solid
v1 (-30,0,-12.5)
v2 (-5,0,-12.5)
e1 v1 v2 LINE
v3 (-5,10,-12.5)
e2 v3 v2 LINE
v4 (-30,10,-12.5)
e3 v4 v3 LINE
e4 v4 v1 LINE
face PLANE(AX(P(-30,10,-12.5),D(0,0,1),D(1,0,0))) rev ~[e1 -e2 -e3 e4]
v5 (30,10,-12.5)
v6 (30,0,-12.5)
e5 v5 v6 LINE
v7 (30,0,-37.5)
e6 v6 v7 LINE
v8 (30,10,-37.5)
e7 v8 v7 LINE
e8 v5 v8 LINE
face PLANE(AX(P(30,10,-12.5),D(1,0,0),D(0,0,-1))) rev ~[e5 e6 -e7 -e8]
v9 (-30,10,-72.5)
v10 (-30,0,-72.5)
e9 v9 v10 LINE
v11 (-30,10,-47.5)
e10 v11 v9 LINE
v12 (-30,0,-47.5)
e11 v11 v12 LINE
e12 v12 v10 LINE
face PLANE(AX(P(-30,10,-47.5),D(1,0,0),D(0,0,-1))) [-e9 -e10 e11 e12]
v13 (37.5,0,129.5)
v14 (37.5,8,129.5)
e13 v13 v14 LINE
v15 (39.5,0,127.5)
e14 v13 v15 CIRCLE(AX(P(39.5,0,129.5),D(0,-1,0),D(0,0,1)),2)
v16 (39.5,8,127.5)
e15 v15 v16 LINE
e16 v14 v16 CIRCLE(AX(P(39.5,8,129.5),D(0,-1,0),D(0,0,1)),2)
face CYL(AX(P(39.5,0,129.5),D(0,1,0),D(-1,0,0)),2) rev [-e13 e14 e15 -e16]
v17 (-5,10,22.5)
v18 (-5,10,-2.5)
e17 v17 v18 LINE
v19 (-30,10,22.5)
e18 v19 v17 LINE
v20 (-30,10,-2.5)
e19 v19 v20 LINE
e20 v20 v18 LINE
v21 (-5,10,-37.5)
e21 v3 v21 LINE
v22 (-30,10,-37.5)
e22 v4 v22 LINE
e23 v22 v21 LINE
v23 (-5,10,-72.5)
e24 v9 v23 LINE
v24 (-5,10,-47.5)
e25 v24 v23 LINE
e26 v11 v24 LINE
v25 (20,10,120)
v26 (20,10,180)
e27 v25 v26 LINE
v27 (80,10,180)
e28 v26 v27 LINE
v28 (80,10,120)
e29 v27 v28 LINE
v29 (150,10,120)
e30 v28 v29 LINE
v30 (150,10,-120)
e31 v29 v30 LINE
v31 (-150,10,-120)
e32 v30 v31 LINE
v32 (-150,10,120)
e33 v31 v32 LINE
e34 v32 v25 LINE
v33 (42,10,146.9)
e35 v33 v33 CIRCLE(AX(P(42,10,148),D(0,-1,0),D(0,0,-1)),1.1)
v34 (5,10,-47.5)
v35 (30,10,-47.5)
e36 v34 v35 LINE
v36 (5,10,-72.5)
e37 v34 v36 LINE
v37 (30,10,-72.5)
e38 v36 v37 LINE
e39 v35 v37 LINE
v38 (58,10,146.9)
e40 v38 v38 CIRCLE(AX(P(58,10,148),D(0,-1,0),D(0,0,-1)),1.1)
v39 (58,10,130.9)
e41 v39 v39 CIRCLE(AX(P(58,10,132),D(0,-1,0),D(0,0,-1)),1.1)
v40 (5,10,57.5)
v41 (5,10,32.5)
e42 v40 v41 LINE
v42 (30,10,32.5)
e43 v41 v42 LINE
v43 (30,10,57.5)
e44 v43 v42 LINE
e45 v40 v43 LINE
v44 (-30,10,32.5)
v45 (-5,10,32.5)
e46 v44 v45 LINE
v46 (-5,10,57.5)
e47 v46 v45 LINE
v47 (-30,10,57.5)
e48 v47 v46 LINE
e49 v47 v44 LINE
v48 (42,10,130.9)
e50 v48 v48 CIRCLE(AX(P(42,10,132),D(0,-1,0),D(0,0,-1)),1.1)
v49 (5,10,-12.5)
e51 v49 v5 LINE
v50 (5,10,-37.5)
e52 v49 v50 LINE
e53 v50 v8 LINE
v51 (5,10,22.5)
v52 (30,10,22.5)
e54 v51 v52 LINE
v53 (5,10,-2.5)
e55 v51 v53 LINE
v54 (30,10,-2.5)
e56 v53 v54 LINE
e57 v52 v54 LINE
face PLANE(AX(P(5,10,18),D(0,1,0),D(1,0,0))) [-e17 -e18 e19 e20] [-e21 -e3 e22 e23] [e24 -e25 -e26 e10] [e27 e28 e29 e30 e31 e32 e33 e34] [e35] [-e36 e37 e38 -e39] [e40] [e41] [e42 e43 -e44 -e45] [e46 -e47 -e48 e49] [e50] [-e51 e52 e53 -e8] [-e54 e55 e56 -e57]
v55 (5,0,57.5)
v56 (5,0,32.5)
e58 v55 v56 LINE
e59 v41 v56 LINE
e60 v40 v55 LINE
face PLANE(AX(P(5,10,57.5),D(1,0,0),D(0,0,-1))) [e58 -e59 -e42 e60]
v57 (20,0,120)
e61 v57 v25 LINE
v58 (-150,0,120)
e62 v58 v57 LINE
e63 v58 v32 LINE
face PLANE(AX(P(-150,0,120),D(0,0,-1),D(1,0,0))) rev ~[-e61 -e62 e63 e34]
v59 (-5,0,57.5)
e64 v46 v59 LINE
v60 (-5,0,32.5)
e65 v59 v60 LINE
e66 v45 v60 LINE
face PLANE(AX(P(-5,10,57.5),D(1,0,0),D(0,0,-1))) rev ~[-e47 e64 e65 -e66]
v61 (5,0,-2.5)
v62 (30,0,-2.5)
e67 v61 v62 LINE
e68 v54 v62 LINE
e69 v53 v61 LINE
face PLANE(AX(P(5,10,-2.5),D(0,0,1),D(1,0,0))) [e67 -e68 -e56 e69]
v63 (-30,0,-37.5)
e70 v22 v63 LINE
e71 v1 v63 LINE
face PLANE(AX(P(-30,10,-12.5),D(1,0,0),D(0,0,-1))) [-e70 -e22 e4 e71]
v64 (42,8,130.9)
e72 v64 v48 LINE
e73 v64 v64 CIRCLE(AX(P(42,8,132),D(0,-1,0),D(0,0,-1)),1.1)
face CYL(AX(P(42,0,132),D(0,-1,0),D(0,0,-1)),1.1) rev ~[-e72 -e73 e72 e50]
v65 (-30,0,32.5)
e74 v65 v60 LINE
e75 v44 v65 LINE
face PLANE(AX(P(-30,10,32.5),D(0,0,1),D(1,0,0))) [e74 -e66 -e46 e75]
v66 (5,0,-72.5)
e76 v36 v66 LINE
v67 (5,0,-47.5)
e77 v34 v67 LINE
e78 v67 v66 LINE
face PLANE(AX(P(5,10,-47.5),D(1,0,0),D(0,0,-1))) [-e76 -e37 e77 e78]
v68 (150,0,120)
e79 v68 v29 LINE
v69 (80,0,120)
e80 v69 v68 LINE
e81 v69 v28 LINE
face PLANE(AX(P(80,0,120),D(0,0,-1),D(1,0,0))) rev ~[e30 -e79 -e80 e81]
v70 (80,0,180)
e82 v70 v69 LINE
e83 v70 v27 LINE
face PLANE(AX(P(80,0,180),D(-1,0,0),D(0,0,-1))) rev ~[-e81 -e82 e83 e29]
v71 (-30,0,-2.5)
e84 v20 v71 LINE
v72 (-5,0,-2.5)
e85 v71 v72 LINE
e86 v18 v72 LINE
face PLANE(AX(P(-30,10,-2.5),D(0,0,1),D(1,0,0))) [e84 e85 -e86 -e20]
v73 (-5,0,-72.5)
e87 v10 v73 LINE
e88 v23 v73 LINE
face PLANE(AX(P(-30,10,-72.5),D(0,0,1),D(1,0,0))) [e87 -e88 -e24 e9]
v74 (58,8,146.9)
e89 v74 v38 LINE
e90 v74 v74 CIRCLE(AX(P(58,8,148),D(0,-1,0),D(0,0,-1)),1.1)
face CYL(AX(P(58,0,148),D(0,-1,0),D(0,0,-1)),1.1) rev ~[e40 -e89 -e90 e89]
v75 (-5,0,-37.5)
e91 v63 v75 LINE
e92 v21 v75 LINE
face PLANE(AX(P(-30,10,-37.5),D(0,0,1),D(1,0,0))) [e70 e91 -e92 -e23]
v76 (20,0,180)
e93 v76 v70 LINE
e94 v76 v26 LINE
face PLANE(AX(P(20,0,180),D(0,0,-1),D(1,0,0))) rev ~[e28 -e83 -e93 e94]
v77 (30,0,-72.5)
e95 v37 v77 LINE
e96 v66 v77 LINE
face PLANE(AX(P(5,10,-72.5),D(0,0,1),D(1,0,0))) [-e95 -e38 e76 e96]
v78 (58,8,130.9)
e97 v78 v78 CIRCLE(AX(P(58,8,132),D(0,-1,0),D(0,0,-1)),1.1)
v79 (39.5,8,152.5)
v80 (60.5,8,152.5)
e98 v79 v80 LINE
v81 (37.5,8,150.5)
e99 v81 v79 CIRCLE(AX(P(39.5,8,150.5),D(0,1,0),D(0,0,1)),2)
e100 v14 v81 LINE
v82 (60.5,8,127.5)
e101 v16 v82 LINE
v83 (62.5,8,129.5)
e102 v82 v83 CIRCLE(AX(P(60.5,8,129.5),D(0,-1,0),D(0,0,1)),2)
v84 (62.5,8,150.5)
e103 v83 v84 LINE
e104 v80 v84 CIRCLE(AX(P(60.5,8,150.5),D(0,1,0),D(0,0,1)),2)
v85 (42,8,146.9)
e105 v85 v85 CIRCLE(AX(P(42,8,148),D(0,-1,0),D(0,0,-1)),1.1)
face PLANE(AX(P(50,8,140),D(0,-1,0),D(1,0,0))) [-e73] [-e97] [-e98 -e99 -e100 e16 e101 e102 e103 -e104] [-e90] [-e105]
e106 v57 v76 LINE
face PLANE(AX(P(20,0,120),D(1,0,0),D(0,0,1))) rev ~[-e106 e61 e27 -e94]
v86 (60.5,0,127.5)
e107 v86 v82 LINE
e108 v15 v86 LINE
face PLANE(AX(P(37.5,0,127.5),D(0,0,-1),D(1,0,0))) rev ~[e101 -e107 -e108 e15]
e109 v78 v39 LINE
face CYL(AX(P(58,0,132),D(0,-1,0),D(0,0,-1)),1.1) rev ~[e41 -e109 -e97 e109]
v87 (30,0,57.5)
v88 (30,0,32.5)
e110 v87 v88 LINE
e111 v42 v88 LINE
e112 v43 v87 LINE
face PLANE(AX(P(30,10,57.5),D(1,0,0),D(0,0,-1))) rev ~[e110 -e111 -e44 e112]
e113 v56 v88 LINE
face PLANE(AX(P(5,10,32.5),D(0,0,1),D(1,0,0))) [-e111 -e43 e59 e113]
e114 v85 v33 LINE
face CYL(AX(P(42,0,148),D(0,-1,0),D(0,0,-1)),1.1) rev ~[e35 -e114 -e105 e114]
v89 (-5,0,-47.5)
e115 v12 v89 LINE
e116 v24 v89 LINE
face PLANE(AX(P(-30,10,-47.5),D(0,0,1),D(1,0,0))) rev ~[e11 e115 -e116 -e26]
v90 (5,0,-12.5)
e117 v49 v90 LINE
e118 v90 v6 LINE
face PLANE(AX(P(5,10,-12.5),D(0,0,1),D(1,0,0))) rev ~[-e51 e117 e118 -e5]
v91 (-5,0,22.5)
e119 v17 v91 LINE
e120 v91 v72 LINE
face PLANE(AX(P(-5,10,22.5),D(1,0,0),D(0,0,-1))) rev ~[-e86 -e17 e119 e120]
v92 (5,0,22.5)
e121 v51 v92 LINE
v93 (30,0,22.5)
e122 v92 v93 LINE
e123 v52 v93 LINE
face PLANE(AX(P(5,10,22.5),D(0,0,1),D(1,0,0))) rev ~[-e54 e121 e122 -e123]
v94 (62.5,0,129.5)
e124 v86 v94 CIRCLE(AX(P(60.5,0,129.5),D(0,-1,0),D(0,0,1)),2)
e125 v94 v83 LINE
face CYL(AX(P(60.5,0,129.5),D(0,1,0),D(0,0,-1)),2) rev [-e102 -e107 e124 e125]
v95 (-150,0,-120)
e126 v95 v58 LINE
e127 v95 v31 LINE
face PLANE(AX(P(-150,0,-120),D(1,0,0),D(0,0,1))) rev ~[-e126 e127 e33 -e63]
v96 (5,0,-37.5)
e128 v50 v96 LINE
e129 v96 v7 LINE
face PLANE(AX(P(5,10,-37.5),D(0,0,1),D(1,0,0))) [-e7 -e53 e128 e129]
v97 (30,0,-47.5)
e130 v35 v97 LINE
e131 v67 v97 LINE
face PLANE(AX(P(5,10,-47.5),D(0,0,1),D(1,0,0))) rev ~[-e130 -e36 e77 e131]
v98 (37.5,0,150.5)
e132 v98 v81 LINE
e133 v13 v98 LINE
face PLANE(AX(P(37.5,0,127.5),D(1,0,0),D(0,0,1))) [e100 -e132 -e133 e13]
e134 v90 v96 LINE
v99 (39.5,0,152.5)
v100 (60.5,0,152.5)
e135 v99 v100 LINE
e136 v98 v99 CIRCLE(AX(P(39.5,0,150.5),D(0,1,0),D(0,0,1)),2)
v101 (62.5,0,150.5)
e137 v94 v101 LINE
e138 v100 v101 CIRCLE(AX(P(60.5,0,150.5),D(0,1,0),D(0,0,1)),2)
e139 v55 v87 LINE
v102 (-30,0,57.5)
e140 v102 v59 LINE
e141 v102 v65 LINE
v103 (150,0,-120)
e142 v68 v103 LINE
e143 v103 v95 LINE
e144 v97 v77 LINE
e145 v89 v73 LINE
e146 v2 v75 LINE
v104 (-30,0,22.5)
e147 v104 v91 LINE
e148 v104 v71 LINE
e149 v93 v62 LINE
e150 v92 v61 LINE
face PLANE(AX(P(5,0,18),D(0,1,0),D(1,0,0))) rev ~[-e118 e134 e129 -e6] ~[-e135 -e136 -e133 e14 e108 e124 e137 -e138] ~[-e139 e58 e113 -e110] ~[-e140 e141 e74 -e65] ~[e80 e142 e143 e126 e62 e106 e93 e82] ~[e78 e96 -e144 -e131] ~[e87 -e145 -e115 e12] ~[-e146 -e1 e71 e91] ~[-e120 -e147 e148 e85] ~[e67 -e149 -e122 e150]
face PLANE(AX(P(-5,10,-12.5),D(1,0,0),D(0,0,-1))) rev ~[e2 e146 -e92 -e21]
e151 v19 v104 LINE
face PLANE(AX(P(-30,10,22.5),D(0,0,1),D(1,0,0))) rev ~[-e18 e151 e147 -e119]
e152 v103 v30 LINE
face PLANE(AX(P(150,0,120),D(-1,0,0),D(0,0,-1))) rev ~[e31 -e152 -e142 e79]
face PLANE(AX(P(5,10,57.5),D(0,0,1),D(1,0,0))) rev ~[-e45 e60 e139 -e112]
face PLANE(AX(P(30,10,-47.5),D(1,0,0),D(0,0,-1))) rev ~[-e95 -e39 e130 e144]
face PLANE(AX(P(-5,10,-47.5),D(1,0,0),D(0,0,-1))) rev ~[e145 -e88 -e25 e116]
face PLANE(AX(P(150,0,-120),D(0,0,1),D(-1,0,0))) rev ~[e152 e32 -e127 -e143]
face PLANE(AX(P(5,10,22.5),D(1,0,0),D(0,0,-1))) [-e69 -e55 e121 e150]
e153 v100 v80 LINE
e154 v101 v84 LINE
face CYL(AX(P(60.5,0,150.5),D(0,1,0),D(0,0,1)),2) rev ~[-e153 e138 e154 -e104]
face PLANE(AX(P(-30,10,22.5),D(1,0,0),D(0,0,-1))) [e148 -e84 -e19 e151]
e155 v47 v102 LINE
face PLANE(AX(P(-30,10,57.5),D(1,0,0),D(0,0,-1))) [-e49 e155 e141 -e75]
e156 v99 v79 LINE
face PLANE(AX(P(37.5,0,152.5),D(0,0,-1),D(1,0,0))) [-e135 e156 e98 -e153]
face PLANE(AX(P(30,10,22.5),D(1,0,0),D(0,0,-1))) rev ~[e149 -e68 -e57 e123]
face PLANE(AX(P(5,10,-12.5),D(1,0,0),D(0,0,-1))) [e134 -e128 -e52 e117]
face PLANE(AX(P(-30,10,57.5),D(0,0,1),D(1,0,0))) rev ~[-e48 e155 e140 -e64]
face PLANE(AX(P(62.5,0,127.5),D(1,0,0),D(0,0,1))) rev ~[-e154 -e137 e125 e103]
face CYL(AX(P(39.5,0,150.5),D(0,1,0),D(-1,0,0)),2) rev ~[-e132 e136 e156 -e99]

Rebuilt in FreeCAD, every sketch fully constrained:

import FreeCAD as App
import Part
import Sketcher
from FreeCAD import Vector
Q = App.Units.Quantity


def edges_at(feature, points):
    """Names of the edges that pass closest to the given points."""
    edges = feature.Shape.Edges
    near = lambda p: min(range(len(edges)), key=lambda i: edges[i].distToShape(Part.Vertex(*p))[0])
    return sorted({f"Edge{near(p) + 1}" for p in points})


def add_polygon(sketch, points):
    """Adds a closed chain of lines whose ends are joined by coincident constraints."""
    first, n = sketch.GeometryCount, len(points)
    for a, b in zip(points, points[1:] + points[:1]):
        sketch.addGeometry(Part.LineSegment(App.Vector(*a, 0), App.Vector(*b, 0)), False)
    for i in range(n):
        sketch.addConstraint(Sketcher.Constraint("Coincident", first + i, 2, first + (i + 1) % n, 1))

doc = App.newDocument("Part")
body = doc.addObject("PartDesign::Body", "Body")

# Sketch on XZ plane
sketch1 = body.newObject("Sketcher::SketchObject", "Sketch")
sketch1.AttachmentSupport = (doc.getObject("XZ_Plane"), [""])
sketch1.MapMode = "FlatFace"
add_polygon(sketch1, [(-150, 120), (20, 120), (20, 180), (80, 180), (80, 120), (150, 120), (150, -120), (-150, -120)])  # lines 0-7
sketch1.addConstraint([
    Sketcher.Constraint("Horizontal", 0),
    Sketcher.Constraint("Vertical", 1),
    Sketcher.Constraint("Horizontal", 2),
    Sketcher.Constraint("Vertical", 3),
    Sketcher.Constraint("Horizontal", 4),
    Sketcher.Constraint("Vertical", 5),
    Sketcher.Constraint("Horizontal", 6),
    Sketcher.Constraint("Vertical", 7),
    Sketcher.Constraint("Symmetric", 4, 2, 6, 2, -1, 1),
    Sketcher.Constraint("Horizontal", 0, 2, 3, 2),
    Sketcher.Constraint("Equal", 2, 1),
    Sketcher.Constraint("DistanceX", 0, 1, 0, 2, Q("170 mm")),
    Sketcher.Constraint("DistanceX", 2, 1, 2, 2, Q("60 mm")),
    Sketcher.Constraint("DistanceX", 4, 1, 4, 2, Q("70 mm")),
    Sketcher.Constraint("DistanceY", 5, 2, 5, 1, Q("240 mm")),
])
pad1 = body.newObject("PartDesign::Pad", "Pad")
pad1.Profile = sketch1
pad1.Length = 10
pad1.Reversed = True

# Sketch on XZ plane
sketch2 = body.newObject("Sketcher::SketchObject", "Sketch001")
sketch2.AttachmentSupport = (doc.getObject("XZ_Plane"), [""])
sketch2.MapMode = "FlatFace"
add_polygon(sketch2, [(37.5, 152.5), (37.5, 127.5), (62.5, 127.5), (62.5, 152.5)])  # lines 0-3
sketch2.addGeometry(Part.Circle(Vector(42, 132, 0), Vector(0, 0, 1), 1.1), False)  # 4
sketch2.addGeometry(Part.Circle(Vector(58, 132, 0), Vector(0, 0, 1), 1.1), False)  # 5
sketch2.addGeometry(Part.Circle(Vector(42, 148, 0), Vector(0, 0, 1), 1.1), False)  # 6
sketch2.addGeometry(Part.Circle(Vector(58, 148, 0), Vector(0, 0, 1), 1.1), False)  # 7
sketch2.addConstraint([
    Sketcher.Constraint("Vertical", 0),
    Sketcher.Constraint("Horizontal", 1),
    Sketcher.Constraint("Vertical", 2),
    Sketcher.Constraint("Horizontal", 3),
    Sketcher.Constraint("Equal", 4, 5),
    Sketcher.Constraint("Equal", 5, 6),
    Sketcher.Constraint("Equal", 6, 7),
    Sketcher.Constraint("Horizontal", 4, 3, 5, 3),
    Sketcher.Constraint("Horizontal", 6, 3, 7, 3),
    Sketcher.Constraint("Vertical", 4, 3, 6, 3),
    Sketcher.Constraint("Vertical", 5, 3, 7, 3),
    Sketcher.Constraint("Equal", 3, 0),
    Sketcher.Constraint("Diameter", 4, Q("2.2 mm")),
    Sketcher.Constraint("DistanceX", 1, 1, 1, 2, Q("25 mm")),
    Sketcher.Constraint("DistanceX", -1, 1, 4, 3, Q("42 mm")),
    Sketcher.Constraint("DistanceY", -1, 1, 4, 3, Q("132 mm")),
    Sketcher.Constraint("DistanceX", -1, 1, 5, 3, Q("58 mm")),
    Sketcher.Constraint("DistanceY", -1, 1, 6, 3, Q("148 mm")),
    Sketcher.Constraint("DistanceX", -1, 1, 0, 2, Q("37.5 mm")),
    Sketcher.Constraint("DistanceY", -1, 1, 0, 2, Q("127.5 mm")),
])
pocket1 = body.newObject("PartDesign::Pocket", "Pocket")
pocket1.Profile = sketch2
pocket1.Length = 8

# Sketch on XZ plane
sketch3 = body.newObject("Sketcher::SketchObject", "Sketch002")
sketch3.AttachmentSupport = (doc.getObject("XZ_Plane"), [""])
sketch3.MapMode = "FlatFace"
sketch3.addGeometry([
    Part.Circle(Vector(42, 132, 0), Vector(0, 0, 1), 1.1),
    Part.Circle(Vector(42, 148, 0), Vector(0, 0, 1), 1.1),
    Part.Circle(Vector(58, 132, 0), Vector(0, 0, 1), 1.1),
    Part.Circle(Vector(58, 148, 0), Vector(0, 0, 1), 1.1),
], False)
sketch3.addConstraint([
    Sketcher.Constraint("Equal", 0, 1),
    Sketcher.Constraint("Equal", 1, 2),
    Sketcher.Constraint("Equal", 2, 3),
    Sketcher.Constraint("Horizontal", 0, 3, 2, 3),
    Sketcher.Constraint("Horizontal", 1, 3, 3, 3),
    Sketcher.Constraint("Vertical", 0, 3, 1, 3),
    Sketcher.Constraint("Vertical", 2, 3, 3, 3),
    Sketcher.Constraint("Diameter", 0, Q("2.2 mm")),
    Sketcher.Constraint("DistanceX", -1, 1, 0, 3, Q("42 mm")),
    Sketcher.Constraint("DistanceY", -1, 1, 0, 3, Q("132 mm")),
    Sketcher.Constraint("DistanceY", -1, 1, 1, 3, Q("148 mm")),
    Sketcher.Constraint("DistanceX", -1, 1, 2, 3, Q("58 mm")),
])
pocket2 = body.newObject("PartDesign::Pocket", "Pocket001")
pocket2.Profile = sketch3
pocket2.Type = "ThroughAll"

# Sketch on XZ plane
sketch4 = body.newObject("Sketcher::SketchObject", "Sketch003")
sketch4.AttachmentSupport = (doc.getObject("XZ_Plane"), [""])
sketch4.MapMode = "FlatFace"
sketch4.AttachmentOffset = App.Placement(Vector(0, 0, -10), App.Rotation())
add_polygon(sketch4, [(-30, -38), (-30, -12), (-5, -12), (-5, -38)])  # lines 0-3
add_polygon(sketch4, [(-30, 32), (-30, 58), (-5, 58), (-5, 32)])  # lines 4-7
add_polygon(sketch4, [(-30, -72), (-30, -48), (-5, -48), (-5, -72)])  # lines 8-11
add_polygon(sketch4, [(-30, -2), (-30, 22), (-5, 22), (-5, -2)])  # lines 12-15
add_polygon(sketch4, [(5, 32), (5, 58), (30, 58), (30, 32)])  # lines 16-19
add_polygon(sketch4, [(5, -2), (5, 22), (30, 22), (30, -2)])  # lines 20-23
add_polygon(sketch4, [(5, -38), (5, -12), (30, -12), (30, -38)])  # lines 24-27
add_polygon(sketch4, [(5, -72), (5, -48), (30, -48), (30, -72)])  # lines 28-31
sketch4.addConstraint([
    Sketcher.Constraint("Vertical", 0),
    Sketcher.Constraint("Horizontal", 1),
    Sketcher.Constraint("Vertical", 2),
    Sketcher.Constraint("Horizontal", 3),
    Sketcher.Constraint("Vertical", 4),
    Sketcher.Constraint("Horizontal", 5),
    Sketcher.Constraint("Vertical", 6),
    Sketcher.Constraint("Horizontal", 7),
    Sketcher.Constraint("Vertical", 8),
    Sketcher.Constraint("Horizontal", 9),
    Sketcher.Constraint("Vertical", 10),
    Sketcher.Constraint("Horizontal", 11),
    Sketcher.Constraint("Vertical", 12),
    Sketcher.Constraint("Horizontal", 13),
    Sketcher.Constraint("Vertical", 14),
    Sketcher.Constraint("Horizontal", 15),
    Sketcher.Constraint("Vertical", 16),
    Sketcher.Constraint("Horizontal", 17),
    Sketcher.Constraint("Vertical", 18),
    Sketcher.Constraint("Horizontal", 19),
    Sketcher.Constraint("Vertical", 20),
    Sketcher.Constraint("Horizontal", 21),
    Sketcher.Constraint("Vertical", 22),
    Sketcher.Constraint("Horizontal", 23),
    Sketcher.Constraint("Vertical", 24),
    Sketcher.Constraint("Horizontal", 25),
    Sketcher.Constraint("Vertical", 26),
    Sketcher.Constraint("Horizontal", 27),
    Sketcher.Constraint("Vertical", 28),
    Sketcher.Constraint("Horizontal", 29),
    Sketcher.Constraint("Vertical", 30),
    Sketcher.Constraint("Horizontal", 31),
    Sketcher.Constraint("Symmetric", 5, 2, 16, 2, -2),
    Sketcher.Constraint("Symmetric", 7, 2, 18, 2, -2),
    Sketcher.Constraint("Symmetric", 13, 2, 20, 2, -2),
    Sketcher.Constraint("Symmetric", 15, 2, 22, 2, -2),
    Sketcher.Constraint("Symmetric", 1, 2, 24, 2, -2),
    Sketcher.Constraint("Symmetric", 3, 2, 26, 2, -2),
    Sketcher.Constraint("Symmetric", 9, 2, 28, 2, -2),
    Sketcher.Constraint("Symmetric", 11, 2, 30, 2, -2),
    Sketcher.Constraint("Vertical", 3, 2, 4, 2),
    Sketcher.Constraint("Vertical", 2, 2, 5, 2),
    Sketcher.Constraint("Vertical", 7, 2, 8, 2),
    Sketcher.Constraint("Vertical", 6, 2, 9, 2),
    Sketcher.Constraint("Vertical", 11, 2, 12, 2),
    Sketcher.Constraint("Vertical", 10, 2, 13, 2),
    Sketcher.Constraint("Equal", 31, 0),
    Sketcher.Constraint("Equal", 2, 4),
    Sketcher.Constraint("Equal", 6, 8),
    Sketcher.Constraint("Equal", 10, 12),
    Sketcher.Constraint("DistanceX", 1, 1, 1, 2, Q("25 mm")),
    Sketcher.Constraint("DistanceX", 0, 2, -1, 1, Q("30 mm")),
    Sketcher.Constraint("DistanceY", 0, 2, 4, 2, Q("70 mm")),
    Sketcher.Constraint("DistanceY", 8, 2, 3, 2, Q("10 mm")),
    Sketcher.Constraint("DistanceY", 12, 2, 7, 2, Q("10 mm")),
    Sketcher.Constraint("DistanceY", 0, 2, -1, 1, Q("12.5 mm")),
])
pocket3 = body.newObject("PartDesign::Pocket", "Pocket002")
pocket3.Profile = sketch4
pocket3.Type = "ThroughAll"
pocket3.Reversed = True
doc.recompute()

fillet = body.newObject("PartDesign::Fillet", "Fillet")
fillet.Base = (pocket3, edges_at(pocket3, [
    (37.5, 4, 152.5),
    (62.5, 4, 152.5),
    (62.5, 4, 127.5),
    (37.5, 4, 127.5),
]))
fillet.Radius = 2

doc.recompute()
